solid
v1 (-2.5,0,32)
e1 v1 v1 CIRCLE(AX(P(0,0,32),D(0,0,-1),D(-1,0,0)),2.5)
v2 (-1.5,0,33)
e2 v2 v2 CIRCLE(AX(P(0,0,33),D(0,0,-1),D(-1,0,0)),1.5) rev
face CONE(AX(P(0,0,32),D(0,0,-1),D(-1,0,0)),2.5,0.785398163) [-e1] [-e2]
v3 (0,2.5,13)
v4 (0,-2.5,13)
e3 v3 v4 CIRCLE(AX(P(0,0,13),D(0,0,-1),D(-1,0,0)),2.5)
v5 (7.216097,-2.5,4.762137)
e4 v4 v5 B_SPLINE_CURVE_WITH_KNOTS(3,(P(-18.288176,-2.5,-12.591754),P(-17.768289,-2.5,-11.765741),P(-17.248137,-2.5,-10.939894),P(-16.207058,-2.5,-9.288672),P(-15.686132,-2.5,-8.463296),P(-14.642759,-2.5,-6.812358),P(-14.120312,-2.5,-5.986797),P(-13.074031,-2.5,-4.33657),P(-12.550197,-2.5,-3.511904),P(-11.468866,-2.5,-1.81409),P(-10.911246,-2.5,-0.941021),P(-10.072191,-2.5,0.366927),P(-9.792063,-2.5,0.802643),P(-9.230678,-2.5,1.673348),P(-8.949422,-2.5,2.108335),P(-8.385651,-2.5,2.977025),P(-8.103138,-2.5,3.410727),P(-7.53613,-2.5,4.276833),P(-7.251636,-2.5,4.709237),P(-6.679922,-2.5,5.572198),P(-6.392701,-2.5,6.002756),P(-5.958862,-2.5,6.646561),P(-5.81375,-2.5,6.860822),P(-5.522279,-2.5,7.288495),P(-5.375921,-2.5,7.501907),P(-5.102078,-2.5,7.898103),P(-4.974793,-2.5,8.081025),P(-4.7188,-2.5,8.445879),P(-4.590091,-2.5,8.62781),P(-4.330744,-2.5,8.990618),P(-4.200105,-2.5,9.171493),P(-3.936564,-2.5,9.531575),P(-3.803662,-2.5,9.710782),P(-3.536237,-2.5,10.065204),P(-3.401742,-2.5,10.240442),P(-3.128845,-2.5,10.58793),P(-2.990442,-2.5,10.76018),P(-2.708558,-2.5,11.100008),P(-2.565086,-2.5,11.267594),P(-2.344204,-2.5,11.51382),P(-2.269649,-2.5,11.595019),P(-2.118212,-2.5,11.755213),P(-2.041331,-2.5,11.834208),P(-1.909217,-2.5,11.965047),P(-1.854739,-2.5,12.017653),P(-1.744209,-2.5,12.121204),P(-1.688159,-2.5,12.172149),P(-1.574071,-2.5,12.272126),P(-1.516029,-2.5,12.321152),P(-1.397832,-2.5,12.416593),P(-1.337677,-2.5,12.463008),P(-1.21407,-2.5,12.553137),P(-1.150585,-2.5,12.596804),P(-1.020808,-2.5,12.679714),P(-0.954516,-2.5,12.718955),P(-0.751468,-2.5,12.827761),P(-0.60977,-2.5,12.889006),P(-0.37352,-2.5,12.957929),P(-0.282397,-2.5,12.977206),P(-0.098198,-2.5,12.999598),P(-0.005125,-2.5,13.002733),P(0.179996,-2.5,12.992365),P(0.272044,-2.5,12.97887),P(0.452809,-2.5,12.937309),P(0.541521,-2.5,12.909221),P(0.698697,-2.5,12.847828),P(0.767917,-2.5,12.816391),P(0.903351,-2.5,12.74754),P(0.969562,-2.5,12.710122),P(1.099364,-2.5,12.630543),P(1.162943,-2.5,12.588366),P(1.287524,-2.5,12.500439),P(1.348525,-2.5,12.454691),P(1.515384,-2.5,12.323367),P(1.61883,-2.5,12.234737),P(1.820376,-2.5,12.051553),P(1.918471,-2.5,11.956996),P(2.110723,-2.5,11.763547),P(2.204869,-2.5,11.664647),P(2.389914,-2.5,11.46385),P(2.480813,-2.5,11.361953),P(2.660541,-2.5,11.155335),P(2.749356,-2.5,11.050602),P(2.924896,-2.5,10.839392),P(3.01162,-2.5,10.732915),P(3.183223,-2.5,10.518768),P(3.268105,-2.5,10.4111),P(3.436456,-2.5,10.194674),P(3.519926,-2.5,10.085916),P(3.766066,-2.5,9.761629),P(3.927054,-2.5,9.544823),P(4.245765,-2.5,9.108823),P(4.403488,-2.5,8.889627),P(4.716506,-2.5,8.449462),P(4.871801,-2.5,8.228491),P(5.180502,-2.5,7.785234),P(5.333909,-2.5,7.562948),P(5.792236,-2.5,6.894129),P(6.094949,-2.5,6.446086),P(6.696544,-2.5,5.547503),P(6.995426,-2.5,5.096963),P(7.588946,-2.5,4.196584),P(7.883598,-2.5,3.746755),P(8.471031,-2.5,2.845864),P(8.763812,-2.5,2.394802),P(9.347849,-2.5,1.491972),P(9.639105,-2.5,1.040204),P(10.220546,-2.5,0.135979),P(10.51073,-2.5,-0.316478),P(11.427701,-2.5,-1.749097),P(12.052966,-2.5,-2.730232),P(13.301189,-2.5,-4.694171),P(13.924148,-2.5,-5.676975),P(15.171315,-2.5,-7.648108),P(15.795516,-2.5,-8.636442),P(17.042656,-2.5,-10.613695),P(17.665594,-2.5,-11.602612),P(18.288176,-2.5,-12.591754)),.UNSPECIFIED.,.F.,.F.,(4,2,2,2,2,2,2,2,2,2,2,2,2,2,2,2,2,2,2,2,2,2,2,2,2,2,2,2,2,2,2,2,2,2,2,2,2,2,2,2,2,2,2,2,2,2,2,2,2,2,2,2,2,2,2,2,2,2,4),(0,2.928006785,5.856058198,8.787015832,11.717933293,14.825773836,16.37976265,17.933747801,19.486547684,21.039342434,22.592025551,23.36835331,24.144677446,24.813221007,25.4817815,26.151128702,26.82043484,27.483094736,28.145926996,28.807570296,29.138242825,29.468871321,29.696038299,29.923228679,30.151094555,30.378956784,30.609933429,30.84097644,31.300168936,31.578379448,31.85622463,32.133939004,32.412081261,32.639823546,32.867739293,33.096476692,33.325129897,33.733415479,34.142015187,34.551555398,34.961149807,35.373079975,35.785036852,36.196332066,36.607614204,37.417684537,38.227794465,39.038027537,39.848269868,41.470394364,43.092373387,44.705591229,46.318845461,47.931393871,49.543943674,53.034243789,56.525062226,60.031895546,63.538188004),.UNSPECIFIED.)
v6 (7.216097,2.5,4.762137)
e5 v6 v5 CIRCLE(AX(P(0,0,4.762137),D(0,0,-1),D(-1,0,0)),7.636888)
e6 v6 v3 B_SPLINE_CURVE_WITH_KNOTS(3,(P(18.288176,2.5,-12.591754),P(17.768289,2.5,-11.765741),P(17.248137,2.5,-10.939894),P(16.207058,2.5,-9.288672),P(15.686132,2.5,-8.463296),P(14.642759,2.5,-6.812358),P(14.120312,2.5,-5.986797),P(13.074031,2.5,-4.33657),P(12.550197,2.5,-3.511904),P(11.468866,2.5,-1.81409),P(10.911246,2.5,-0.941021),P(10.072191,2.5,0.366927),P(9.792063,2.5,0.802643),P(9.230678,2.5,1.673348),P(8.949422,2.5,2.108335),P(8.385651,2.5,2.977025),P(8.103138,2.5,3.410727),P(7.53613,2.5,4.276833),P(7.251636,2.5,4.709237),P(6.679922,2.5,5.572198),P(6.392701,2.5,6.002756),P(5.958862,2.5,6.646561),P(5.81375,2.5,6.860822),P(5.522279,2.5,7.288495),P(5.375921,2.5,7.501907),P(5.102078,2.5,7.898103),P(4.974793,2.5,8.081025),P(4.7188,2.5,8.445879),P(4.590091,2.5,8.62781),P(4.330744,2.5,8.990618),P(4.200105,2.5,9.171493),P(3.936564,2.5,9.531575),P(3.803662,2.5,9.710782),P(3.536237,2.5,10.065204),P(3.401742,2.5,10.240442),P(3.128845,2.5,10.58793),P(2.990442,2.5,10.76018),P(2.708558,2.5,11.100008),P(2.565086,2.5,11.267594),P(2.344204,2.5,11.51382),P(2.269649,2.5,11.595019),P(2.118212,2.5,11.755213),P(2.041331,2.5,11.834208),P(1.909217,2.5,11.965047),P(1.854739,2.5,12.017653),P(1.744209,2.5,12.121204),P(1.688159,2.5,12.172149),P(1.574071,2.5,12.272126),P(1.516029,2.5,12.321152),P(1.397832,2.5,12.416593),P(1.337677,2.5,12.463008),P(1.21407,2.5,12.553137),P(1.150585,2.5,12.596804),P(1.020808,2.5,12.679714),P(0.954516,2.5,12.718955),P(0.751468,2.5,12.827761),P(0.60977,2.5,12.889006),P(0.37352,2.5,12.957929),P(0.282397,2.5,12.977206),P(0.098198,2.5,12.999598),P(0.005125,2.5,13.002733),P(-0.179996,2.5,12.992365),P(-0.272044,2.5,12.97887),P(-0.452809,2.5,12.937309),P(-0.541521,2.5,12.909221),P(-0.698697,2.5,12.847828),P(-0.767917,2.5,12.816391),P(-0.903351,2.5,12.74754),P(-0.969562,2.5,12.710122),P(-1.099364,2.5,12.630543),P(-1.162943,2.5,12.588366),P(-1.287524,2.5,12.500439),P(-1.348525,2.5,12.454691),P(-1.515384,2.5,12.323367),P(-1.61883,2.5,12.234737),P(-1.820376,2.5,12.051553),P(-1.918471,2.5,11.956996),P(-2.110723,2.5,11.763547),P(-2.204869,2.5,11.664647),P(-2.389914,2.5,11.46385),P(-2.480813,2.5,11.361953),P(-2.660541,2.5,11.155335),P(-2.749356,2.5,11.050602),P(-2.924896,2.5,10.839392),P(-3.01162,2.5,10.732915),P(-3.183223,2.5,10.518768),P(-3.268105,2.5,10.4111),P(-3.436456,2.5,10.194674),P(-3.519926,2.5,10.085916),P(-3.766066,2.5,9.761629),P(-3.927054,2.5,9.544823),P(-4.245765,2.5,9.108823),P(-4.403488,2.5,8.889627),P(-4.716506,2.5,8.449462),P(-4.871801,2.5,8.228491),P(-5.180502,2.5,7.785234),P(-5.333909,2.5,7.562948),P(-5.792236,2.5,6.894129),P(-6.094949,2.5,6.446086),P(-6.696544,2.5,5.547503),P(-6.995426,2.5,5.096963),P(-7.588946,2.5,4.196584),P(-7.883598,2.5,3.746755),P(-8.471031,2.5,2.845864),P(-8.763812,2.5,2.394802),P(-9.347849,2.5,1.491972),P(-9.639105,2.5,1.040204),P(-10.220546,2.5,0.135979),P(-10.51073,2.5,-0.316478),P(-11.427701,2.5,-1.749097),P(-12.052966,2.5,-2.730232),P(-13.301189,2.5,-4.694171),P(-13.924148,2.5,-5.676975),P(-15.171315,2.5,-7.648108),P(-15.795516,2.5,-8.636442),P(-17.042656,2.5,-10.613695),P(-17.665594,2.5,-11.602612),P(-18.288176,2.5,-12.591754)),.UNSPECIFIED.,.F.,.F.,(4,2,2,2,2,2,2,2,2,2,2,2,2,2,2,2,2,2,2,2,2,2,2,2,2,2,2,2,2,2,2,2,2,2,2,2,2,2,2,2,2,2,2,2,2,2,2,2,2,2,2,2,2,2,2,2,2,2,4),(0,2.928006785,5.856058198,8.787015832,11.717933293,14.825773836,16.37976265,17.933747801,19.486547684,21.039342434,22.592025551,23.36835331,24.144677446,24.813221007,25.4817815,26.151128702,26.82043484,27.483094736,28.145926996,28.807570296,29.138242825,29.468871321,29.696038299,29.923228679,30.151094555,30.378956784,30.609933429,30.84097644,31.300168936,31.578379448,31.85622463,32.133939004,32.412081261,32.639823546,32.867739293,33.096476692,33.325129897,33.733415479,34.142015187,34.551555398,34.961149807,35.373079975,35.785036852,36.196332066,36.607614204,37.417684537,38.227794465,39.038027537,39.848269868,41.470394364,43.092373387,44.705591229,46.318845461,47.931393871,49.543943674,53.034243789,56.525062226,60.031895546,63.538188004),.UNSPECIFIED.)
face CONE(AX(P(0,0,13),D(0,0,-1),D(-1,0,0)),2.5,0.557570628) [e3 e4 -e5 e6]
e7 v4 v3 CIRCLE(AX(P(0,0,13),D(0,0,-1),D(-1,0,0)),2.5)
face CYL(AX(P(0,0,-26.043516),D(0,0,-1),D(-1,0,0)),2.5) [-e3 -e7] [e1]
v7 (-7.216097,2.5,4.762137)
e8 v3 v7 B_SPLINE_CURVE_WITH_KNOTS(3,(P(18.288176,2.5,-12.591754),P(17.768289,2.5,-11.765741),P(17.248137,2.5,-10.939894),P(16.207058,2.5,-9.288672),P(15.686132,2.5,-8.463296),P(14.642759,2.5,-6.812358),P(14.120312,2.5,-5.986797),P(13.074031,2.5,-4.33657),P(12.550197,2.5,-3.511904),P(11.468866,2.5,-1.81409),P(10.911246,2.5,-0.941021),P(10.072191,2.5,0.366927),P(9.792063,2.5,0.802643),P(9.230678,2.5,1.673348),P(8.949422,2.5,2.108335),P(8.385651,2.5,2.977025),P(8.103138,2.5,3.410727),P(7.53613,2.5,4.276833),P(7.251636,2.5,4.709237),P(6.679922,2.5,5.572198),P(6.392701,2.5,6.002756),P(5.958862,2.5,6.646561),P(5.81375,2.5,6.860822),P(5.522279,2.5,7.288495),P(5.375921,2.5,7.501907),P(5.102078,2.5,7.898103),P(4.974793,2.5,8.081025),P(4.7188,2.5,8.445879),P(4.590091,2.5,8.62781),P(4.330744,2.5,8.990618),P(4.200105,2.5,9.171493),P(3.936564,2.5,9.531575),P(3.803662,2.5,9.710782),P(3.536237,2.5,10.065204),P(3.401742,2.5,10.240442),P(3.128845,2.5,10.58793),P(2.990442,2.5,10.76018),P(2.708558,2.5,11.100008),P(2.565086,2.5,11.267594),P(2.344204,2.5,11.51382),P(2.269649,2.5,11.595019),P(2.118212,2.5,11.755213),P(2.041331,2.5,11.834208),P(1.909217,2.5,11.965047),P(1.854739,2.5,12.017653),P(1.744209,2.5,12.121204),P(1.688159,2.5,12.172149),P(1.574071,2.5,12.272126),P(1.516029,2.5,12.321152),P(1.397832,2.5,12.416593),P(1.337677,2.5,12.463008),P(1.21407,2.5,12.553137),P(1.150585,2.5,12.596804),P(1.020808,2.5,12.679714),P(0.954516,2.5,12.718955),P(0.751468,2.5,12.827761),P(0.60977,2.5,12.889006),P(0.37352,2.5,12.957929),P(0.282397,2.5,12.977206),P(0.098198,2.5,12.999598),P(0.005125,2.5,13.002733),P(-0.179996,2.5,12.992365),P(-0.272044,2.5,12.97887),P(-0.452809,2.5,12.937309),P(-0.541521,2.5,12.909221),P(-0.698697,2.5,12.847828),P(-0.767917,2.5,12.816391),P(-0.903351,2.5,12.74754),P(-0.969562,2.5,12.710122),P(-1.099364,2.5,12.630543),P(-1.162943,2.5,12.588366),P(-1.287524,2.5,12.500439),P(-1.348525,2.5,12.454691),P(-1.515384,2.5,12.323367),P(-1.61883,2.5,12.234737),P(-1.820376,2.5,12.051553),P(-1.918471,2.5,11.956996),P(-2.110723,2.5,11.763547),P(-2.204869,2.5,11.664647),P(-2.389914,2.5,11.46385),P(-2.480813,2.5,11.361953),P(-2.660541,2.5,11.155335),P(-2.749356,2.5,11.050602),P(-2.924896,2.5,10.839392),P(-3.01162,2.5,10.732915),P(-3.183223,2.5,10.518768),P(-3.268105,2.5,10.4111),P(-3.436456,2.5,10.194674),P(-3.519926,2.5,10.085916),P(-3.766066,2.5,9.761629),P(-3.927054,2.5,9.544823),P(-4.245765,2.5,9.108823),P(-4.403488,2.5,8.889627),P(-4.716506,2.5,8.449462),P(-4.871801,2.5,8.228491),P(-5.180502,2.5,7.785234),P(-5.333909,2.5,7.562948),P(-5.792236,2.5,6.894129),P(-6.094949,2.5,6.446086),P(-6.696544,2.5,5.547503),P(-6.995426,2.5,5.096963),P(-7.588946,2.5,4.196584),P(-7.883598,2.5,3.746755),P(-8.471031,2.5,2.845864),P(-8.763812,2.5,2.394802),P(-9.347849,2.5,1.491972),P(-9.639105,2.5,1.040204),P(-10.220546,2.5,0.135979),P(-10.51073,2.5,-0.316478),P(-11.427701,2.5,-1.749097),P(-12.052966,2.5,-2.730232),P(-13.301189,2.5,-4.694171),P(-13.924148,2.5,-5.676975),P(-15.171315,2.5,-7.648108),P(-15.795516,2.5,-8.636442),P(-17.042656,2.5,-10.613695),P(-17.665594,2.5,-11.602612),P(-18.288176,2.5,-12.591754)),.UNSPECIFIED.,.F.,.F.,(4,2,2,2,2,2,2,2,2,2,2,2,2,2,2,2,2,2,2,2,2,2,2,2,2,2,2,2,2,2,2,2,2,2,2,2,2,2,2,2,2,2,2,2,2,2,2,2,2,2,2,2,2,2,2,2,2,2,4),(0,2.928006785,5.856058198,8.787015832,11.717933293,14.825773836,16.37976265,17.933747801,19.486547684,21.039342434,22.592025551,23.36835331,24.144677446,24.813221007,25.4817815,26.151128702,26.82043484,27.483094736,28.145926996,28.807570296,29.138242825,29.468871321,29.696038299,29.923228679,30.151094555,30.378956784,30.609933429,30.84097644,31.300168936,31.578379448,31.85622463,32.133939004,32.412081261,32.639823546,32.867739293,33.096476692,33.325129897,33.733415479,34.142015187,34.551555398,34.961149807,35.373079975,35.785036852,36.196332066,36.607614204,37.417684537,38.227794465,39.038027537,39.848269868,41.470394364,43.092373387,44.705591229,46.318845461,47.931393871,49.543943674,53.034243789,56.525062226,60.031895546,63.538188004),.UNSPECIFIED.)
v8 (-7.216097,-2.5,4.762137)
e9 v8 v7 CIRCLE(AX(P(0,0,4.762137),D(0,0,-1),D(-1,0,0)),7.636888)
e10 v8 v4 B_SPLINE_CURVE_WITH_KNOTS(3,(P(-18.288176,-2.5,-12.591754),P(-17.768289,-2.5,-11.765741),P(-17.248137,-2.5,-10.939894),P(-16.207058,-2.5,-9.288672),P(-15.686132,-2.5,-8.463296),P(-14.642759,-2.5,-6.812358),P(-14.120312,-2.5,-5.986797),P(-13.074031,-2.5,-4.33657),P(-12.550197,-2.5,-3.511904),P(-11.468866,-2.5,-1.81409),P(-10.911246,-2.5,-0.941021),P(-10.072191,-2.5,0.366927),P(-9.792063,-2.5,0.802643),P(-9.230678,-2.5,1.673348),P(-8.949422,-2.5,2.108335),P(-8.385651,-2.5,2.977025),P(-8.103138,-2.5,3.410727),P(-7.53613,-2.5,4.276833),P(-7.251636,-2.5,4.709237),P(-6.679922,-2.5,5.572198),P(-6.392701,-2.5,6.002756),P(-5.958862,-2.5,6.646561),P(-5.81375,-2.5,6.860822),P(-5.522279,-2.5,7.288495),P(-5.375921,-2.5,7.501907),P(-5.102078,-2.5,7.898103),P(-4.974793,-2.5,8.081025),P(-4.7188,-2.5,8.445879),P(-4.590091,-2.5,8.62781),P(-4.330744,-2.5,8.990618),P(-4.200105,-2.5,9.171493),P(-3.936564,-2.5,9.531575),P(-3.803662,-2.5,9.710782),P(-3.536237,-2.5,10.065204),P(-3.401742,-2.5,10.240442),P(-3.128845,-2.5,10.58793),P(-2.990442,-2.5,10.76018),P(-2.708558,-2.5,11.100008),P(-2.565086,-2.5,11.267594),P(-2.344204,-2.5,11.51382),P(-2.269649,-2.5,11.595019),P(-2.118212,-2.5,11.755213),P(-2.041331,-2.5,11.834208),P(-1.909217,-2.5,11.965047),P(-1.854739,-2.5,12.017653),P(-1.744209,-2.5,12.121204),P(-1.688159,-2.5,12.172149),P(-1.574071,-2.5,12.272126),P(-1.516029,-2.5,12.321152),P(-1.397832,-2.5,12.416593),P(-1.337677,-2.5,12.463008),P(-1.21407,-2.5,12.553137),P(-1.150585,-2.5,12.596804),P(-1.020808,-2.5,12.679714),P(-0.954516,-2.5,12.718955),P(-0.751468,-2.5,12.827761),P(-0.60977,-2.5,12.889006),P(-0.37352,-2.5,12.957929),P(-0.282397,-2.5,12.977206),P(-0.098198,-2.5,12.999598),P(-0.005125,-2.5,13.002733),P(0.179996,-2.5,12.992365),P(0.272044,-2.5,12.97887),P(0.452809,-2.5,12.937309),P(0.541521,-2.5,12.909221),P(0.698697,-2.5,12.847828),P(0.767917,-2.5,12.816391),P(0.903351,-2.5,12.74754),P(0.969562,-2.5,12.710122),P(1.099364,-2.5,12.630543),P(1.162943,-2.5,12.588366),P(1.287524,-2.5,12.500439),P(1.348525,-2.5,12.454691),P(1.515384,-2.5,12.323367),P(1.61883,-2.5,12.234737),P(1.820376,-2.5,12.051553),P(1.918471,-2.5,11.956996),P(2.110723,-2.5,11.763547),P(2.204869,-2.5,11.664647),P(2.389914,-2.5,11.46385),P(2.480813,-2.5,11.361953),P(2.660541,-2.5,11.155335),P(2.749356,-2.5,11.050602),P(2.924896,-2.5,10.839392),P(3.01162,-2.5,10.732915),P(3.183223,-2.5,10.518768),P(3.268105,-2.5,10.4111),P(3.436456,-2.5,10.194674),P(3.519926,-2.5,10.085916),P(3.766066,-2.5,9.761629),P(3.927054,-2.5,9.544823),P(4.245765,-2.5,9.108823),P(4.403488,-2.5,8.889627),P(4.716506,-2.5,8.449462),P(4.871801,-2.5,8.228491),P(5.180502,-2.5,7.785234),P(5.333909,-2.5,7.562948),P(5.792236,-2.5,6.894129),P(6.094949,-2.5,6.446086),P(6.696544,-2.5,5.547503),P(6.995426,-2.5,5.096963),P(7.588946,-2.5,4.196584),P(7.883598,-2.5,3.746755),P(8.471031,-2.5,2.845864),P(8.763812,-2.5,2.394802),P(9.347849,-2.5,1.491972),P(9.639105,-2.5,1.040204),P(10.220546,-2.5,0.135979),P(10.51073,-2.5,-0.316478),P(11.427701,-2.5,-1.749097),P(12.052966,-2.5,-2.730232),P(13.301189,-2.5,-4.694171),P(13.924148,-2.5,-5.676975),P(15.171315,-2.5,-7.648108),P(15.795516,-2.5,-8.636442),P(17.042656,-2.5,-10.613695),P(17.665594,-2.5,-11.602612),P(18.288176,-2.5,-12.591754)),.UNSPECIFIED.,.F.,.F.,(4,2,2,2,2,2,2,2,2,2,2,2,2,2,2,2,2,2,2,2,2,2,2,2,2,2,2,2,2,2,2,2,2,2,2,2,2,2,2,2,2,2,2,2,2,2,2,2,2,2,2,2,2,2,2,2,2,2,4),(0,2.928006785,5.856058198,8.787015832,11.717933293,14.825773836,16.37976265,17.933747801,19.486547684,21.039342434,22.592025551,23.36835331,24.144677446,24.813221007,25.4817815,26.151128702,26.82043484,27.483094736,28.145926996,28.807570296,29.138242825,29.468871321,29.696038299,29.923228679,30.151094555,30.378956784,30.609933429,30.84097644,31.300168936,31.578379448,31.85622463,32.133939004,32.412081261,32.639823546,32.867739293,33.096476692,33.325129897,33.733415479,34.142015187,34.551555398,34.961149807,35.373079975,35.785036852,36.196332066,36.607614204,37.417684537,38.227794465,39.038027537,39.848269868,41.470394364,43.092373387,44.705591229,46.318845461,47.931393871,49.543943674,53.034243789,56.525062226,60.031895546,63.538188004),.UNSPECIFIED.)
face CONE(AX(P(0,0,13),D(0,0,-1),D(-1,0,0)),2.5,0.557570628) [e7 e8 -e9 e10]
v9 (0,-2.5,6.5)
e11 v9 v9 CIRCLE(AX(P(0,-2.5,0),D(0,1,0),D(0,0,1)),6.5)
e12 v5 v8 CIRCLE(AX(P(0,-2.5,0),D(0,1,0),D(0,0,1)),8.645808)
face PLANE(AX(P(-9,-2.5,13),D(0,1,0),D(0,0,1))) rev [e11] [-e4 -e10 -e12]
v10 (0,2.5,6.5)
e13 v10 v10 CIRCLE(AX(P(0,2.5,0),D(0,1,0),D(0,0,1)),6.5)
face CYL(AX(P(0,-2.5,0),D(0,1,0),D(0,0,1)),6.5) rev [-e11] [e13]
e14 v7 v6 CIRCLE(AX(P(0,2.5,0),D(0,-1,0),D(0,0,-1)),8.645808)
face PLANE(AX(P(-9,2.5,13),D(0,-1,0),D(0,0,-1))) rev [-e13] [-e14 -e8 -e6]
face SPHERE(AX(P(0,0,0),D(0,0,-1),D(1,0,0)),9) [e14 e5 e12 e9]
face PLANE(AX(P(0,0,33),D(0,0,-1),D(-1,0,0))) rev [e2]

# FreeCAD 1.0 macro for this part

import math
import FreeCAD as App
import Part
import Sketcher


def edges_at(feature, points):
    """Names of the edges that pass closest to the given points."""
    edges = feature.Shape.Edges
    near = lambda p: min(range(len(edges)), key=lambda i: edges[i].distToShape(Part.Vertex(*p))[0])
    return sorted({f"Edge{near(p) + 1}" for p in points})

doc = App.newDocument("Part")
body = doc.addObject("PartDesign::Body", "Body")

# Sketch on XZ plane
sketch1 = body.newObject("Sketcher::SketchObject", "Sketch")
sketch1.AttachmentSupport = (doc.getObject("XZ_Plane"), [""])
sketch1.MapMode = "FlatFace"
sketch1.addGeometry(Part.LineSegment(App.Vector(0, -9, 0), App.Vector(0, 33, 0)), False)
sketch1.addGeometry(Part.LineSegment(App.Vector(0, 33, 0), App.Vector(2.5, 33, 0)), False)
sketch1.addGeometry(Part.LineSegment(App.Vector(2.5, 33, 0), App.Vector(2.5, 13, 0)), False)
sketch1.addGeometry(Part.LineSegment(App.Vector(2.5, 13, 0), App.Vector(7.636888, 4.762137, 0)), False)
sketch1.addGeometry(Part.ArcOfCircle(Part.Circle(App.Vector(0, 0, 0), App.Vector(0, 0, 1), 9), math.radians(-90), math.radians(31.946444)), False)
sketch1.addConstraint(Sketcher.Constraint("Coincident", 0, 2, 1, 1))
sketch1.addConstraint(Sketcher.Constraint("Coincident", 1, 2, 2, 1))
sketch1.addConstraint(Sketcher.Constraint("Coincident", 2, 2, 3, 1))
sketch1.addConstraint(Sketcher.Constraint("Tangent", 3, 2, 4, 2))
sketch1.addConstraint(Sketcher.Constraint("Coincident", 4, 1, 0, 1))
sketch1.addConstraint(Sketcher.Constraint("Vertical", 0))
sketch1.addConstraint(Sketcher.Constraint("Horizontal", 1))
sketch1.addConstraint(Sketcher.Constraint("Vertical", 2))
sketch1.addConstraint(Sketcher.Constraint("Coincident", 4, 3, -1, 1))
sketch1.addConstraint(Sketcher.Constraint("PointOnObject", 0, 2, -2))
sketch1.addConstraint(Sketcher.Constraint("Radius", 4, 9.0))
sketch1.addConstraint(Sketcher.Constraint("DistanceY", 0, 1, 0, 2, 42.0))
sketch1.addConstraint(Sketcher.Constraint("DistanceY", 2, 2, 2, 1, 20.0))
sketch1.addConstraint(Sketcher.Constraint("DistanceX", 1, 1, 1, 2, 2.5))
revolution = body.newObject("PartDesign::Revolution", "Revolution")
revolution.Profile = sketch1
revolution.ReferenceAxis = (sketch1, ["V_Axis"])
revolution.Angle = 360

# Sketch on YZ plane
sketch2 = body.newObject("Sketcher::SketchObject", "Sketch001")
sketch2.AttachmentSupport = (doc.getObject("YZ_Plane"), [""])
sketch2.MapMode = "FlatFace"
sketch2.addGeometry(Part.LineSegment(App.Vector(2.5, 13, 0), App.Vector(2.5, -8.645808, 0)), False)
sketch2.addGeometry(Part.ArcOfCircle(Part.Circle(App.Vector(0, 0, 0), App.Vector(0, 0, 1), 9), math.radians(-73.87238), math.radians(31.946444)), False)
sketch2.addGeometry(Part.LineSegment(App.Vector(7.636888, 4.762137, 0), App.Vector(2.5, 13, 0)), False)
sketch2.addGeometry(Part.LineSegment(App.Vector(-2.5, -8.645808, 0), App.Vector(-2.5, 13, 0)), False)
sketch2.addGeometry(Part.LineSegment(App.Vector(-2.5, 13, 0), App.Vector(-7.636888, 4.762137, 0)), False)
sketch2.addGeometry(Part.ArcOfCircle(Part.Circle(App.Vector(0, 0, 0), App.Vector(0, 0, 1), 9), math.radians(148.053556), math.radians(253.87238)), False)
sketch2.addConstraint(Sketcher.Constraint("Coincident", 0, 2, 1, 1))
sketch2.addConstraint(Sketcher.Constraint("Tangent", 1, 2, 2, 1))
sketch2.addConstraint(Sketcher.Constraint("Coincident", 2, 2, 0, 1))
sketch2.addConstraint(Sketcher.Constraint("Coincident", 3, 2, 4, 1))
sketch2.addConstraint(Sketcher.Constraint("Tangent", 4, 2, 5, 1))
sketch2.addConstraint(Sketcher.Constraint("Coincident", 5, 2, 3, 1))
sketch2.addConstraint(Sketcher.Constraint("Vertical", 0))
sketch2.addConstraint(Sketcher.Constraint("Vertical", 3))
sketch2.addConstraint(Sketcher.Constraint("Coincident", 1, 3, -1, 1))
sketch2.addConstraint(Sketcher.Constraint("Coincident", 5, 3, -1, 1))
sketch2.addConstraint(Sketcher.Constraint("Equal", 1, 5))
sketch2.addConstraint(Sketcher.Constraint("Symmetric", 2, 2, 3, 2, -2))
sketch2.addConstraint(Sketcher.Constraint("Radius", 1, 9.0))
sketch2.addConstraint(Sketcher.Constraint("DistanceY", -1, 1, 2, 2, 13.0))
sketch2.addConstraint(Sketcher.Constraint("DistanceX", 3, 2, 2, 2, 5.0))
pocket1 = body.newObject("PartDesign::Pocket", "Pocket")
pocket1.Profile = sketch2
pocket1.Type = "ThroughAll"
pocket1.Midplane = True

# Sketch on XZ plane
sketch3 = body.newObject("Sketcher::SketchObject", "Sketch002")
sketch3.AttachmentSupport = (doc.getObject("XZ_Plane"), [""])
sketch3.MapMode = "FlatFace"
sketch3.addGeometry(Part.Circle(App.Vector(0, 0, 0), App.Vector(0, 0, 1), 6.5), False)
sketch3.addConstraint(Sketcher.Constraint("Coincident", 0, 3, -1, 1))
sketch3.addConstraint(Sketcher.Constraint("Diameter", 0, 13.0))
pocket2 = body.newObject("PartDesign::Pocket", "Pocket001")
pocket2.Profile = sketch3
pocket2.Type = "ThroughAll"
pocket2.Midplane = True
doc.recompute()

chamfer = body.newObject("PartDesign::Chamfer", "Chamfer")
chamfer.Base = (pocket2, edges_at(pocket2, [(-2.5, 0, 33)]))
chamfer.Size = 1

doc.recompute()
